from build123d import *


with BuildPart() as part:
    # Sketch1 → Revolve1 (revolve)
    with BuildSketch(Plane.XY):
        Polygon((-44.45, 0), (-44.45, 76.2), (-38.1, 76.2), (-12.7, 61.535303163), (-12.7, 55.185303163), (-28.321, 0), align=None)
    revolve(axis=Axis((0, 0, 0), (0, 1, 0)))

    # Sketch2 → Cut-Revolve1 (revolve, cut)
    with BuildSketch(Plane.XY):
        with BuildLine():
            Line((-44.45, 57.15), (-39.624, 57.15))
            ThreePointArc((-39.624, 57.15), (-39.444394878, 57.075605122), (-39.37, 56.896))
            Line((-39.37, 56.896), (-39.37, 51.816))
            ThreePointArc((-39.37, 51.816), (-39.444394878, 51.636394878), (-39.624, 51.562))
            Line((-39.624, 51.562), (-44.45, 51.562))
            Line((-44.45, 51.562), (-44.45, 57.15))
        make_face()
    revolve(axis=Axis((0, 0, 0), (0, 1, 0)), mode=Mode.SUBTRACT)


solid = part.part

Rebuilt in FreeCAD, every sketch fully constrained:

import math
import FreeCAD as App
import Part
import Sketcher
Q = App.Units.Quantity

doc = App.newDocument("Part")
body = doc.addObject("PartDesign::Body", "Body")

# Sketch on XY plane
sketch1 = doc.addObject("Sketcher::SketchObject", "Sketch")
body.addObject(sketch1)
sketch1.AttachmentSupport = (doc.XY_Plane, [""])
sketch1.MapMode = "FlatFace"
sketch1.addGeometry([
    Part.LineSegment(App.Vector(-44.45, 76.2, 0), App.Vector(-44.45, 0, 0)),  # 0
    Part.LineSegment(App.Vector(-44.45, 0, 0), App.Vector(-28.321, 0, 0)),  # 1
    Part.LineSegment(App.Vector(-28.321, 0, 0), App.Vector(-12.7, 55.185303, 0)),  # 2
    Part.LineSegment(App.Vector(-12.7, 55.185303, 0), App.Vector(-12.7, 61.535303, 0)),  # 3
    Part.LineSegment(App.Vector(-12.7, 61.535303, 0), App.Vector(-38.1, 76.2, 0)),  # 4
    Part.LineSegment(App.Vector(-38.1, 76.2, 0), App.Vector(-44.45, 76.2, 0)),  # 5
], False)
sketch1.addConstraint([
    Sketcher.Constraint("Coincident", 0, 2, 1, 1),
    Sketcher.Constraint("Coincident", 1, 2, 2, 1),
    Sketcher.Constraint("Coincident", 2, 2, 3, 1),
    Sketcher.Constraint("Coincident", 3, 2, 4, 1),
    Sketcher.Constraint("Coincident", 4, 2, 5, 1),
    Sketcher.Constraint("Coincident", 5, 2, 0, 1),
    Sketcher.Constraint("Vertical", 0),
    Sketcher.Constraint("Horizontal", 1),
    Sketcher.Constraint("Vertical", 3),
    Sketcher.Constraint("Horizontal", 5),
    Sketcher.Constraint("PointOnObject", 0, 2, -1),
    Sketcher.Constraint("Equal", 5, 3),
    Sketcher.Constraint("DistanceY", 0, 2, 0, 1, Q("3 in")),
    Sketcher.Constraint("Angle", 4, Q("150 deg")),
    Sketcher.Constraint("DistanceX", 4, 2, 3, 2, Q("1 in")),
    Sketcher.Constraint("DistanceX", 5, 2, 5, 1, Q("0.25 in")),
    Sketcher.Constraint("DistanceX", 2, 2, -1, 1, Q("0.5 in")),
    Sketcher.Constraint("DistanceX", 1, 1, 1, 2, Q("0.635 in")),
])
revolution = doc.addObject("PartDesign::Revolution", "Revolution")
body.addObject(revolution)
revolution.Profile = sketch1
revolution.ReferenceAxis = (sketch1, ["V_Axis"])
revolution.Angle = 360

# Sketch on XY plane
sketch2 = doc.addObject("Sketcher::SketchObject", "Sketch001")
body.addObject(sketch2)
sketch2.AttachmentSupport = (doc.XY_Plane, [""])
sketch2.MapMode = "FlatFace"
sketch2.addGeometry([
    Part.LineSegment(App.Vector(-39.624, 57.15, 0), App.Vector(-44.45, 57.15, 0)),  # 0
    Part.LineSegment(App.Vector(-44.45, 57.15, 0), App.Vector(-44.45, 51.562, 0)),  # 1
    Part.LineSegment(App.Vector(-44.45, 51.562, 0), App.Vector(-39.624, 51.562, 0)),  # 2
    Part.ArcOfCircle(Part.Circle(App.Vector(-39.624, 51.816, 0), App.Vector(0, 0, 1), 0.254), math.radians(-90), math.radians(0)),  # 3
    Part.LineSegment(App.Vector(-39.37, 51.816, 0), App.Vector(-39.37, 56.896, 0)),  # 4
    Part.ArcOfCircle(Part.Circle(App.Vector(-39.624, 56.896, 0), App.Vector(0, 0, 1), 0.254), math.radians(0), math.radians(90)),  # 5
], False)
sketch2.addConstraint([
    Sketcher.Constraint("Coincident", 0, 2, 1, 1),
    Sketcher.Constraint("Coincident", 1, 2, 2, 1),
    Sketcher.Constraint("Tangent", 2, 2, 3, 1),
    Sketcher.Constraint("Tangent", 3, 2, 4, 1),
    Sketcher.Constraint("Tangent", 4, 2, 5, 1),
    Sketcher.Constraint("Tangent", 5, 2, 0, 1),
    Sketcher.Constraint("Horizontal", 0),
    Sketcher.Constraint("Vertical", 1),
    Sketcher.Constraint("Horizontal", 2),
    Sketcher.Constraint("Vertical", 4),
    Sketcher.Constraint("Equal", 3, 5),
    Sketcher.Constraint("Radius", 3, Q("0.01 in")),
    Sketcher.Constraint("DistanceY", 4, 1, 4, 2, Q("0.2 in")),
    Sketcher.Constraint("DistanceX", 0, 2, 0, 1, Q("0.19 in")),
    Sketcher.Constraint("DistanceX", 3, 3, -1, 1, Q("1.56 in")),
    Sketcher.Constraint("DistanceY", -1, 1, 3, 3, Q("2.04 in")),
])
groove = doc.addObject("PartDesign::Groove", "Groove")
body.addObject(groove)
groove.Profile = sketch2
groove.ReferenceAxis = (sketch2, ["V_Axis"])
groove.Angle = 360

doc.recompute()
